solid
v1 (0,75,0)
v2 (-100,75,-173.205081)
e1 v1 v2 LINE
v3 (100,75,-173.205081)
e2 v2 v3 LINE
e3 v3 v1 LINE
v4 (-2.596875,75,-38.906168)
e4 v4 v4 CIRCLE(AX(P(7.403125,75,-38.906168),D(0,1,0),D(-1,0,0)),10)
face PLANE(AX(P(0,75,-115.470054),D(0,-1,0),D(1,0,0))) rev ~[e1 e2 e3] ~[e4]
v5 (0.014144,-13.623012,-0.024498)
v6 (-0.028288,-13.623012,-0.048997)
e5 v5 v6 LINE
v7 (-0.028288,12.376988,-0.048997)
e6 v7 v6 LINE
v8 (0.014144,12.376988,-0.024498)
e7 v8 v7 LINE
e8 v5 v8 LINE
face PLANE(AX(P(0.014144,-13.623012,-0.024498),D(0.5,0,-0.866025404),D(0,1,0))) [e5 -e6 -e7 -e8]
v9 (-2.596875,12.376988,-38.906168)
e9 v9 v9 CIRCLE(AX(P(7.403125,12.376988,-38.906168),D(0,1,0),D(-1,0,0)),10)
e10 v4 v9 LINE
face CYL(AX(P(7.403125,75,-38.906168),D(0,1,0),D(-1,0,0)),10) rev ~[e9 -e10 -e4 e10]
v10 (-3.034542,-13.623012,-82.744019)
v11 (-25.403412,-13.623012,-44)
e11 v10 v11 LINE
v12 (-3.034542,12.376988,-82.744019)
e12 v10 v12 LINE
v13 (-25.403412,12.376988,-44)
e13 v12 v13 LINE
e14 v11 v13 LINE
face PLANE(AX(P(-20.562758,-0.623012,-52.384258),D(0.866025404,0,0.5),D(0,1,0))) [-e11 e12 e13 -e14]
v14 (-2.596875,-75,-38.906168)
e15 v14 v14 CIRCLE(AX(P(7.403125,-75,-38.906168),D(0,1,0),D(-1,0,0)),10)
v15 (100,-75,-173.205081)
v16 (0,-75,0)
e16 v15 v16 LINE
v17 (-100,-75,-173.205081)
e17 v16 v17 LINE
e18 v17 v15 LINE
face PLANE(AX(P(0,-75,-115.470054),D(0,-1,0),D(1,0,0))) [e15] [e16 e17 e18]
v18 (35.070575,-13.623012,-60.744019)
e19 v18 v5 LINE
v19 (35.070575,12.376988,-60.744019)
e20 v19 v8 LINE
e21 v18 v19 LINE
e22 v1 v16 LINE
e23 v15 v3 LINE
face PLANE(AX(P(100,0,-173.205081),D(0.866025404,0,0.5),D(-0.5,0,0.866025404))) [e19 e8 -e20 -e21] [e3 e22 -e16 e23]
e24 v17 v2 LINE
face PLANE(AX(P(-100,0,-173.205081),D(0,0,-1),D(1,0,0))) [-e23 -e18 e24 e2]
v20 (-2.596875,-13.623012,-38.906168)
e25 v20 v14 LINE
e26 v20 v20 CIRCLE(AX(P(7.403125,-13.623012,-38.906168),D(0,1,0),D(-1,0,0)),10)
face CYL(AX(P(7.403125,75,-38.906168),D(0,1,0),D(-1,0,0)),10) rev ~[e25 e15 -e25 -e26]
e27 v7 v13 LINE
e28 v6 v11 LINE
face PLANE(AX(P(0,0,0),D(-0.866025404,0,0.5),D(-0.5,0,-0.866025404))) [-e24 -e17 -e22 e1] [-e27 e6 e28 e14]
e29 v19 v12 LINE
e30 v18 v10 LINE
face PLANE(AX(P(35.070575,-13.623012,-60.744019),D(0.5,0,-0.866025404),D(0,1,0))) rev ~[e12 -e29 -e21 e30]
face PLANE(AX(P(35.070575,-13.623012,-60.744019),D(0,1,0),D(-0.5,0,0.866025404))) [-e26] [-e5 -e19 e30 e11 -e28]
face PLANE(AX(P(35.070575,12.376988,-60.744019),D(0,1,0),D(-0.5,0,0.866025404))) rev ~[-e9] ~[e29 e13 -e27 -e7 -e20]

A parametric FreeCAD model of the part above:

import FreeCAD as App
import Part
import Sketcher

V = App.Vector
Q = App.Units.Quantity

doc = App.newDocument("Part")
body = doc.addObject("PartDesign::Body", "Body")

sketch1 = body.newObject("Sketcher::SketchObject", "Sketch")
sketch1.AttachmentSupport = (doc.getObject("XZ_Plane"), [""])
sketch1.MapMode = "FlatFace"
sketch1.addGeometry(Part.LineSegment(V(100, -173.205081, 0), V(0, 0, 0)), False)
sketch1.addGeometry(Part.LineSegment(V(0, 0, 0), V(-100, -173.205081, 0)), False)
sketch1.addGeometry(Part.LineSegment(V(-100, -173.205081, 0), V(100, -173.205081, 0)), False)
sketch1.addConstraint(Sketcher.Constraint("Coincident", 0, 2, 1, 1))
sketch1.addConstraint(Sketcher.Constraint("Coincident", 1, 2, 2, 1))
sketch1.addConstraint(Sketcher.Constraint("Coincident", 2, 2, 0, 1))
sketch1.addConstraint(Sketcher.Constraint("Horizontal", 2))
sketch1.addConstraint(Sketcher.Constraint("Coincident", 0, 2, -1, 1))
sketch1.addConstraint(Sketcher.Constraint("Equal", 0, 1))
sketch1.addConstraint(Sketcher.Constraint("DistanceX", 2, 1, 2, 2, Q("200 mm")))
sketch1.addConstraint(Sketcher.Constraint("Angle", 0, Q("120 deg")))
pad1 = body.newObject("PartDesign::Pad", "Pad")
pad1.Profile = sketch1
pad1.Length = 150
pad1.Midplane = True

sketch2 = body.newObject("Sketcher::SketchObject", "Sketch001")
sketch2.AttachmentSupport = (doc.getObject("XZ_Plane"), [""])
sketch2.MapMode = "FlatFace"
sketch2.AttachmentOffset = App.Placement(V(0, 0, -75), App.Rotation())
sketch2.addGeometry(Part.Circle(V(7.403125, -38.906168, 0), V(0, 0, 1), 10), False)
sketch2.addConstraint(Sketcher.Constraint("Diameter", 0, Q("20 mm")))
sketch2.addConstraint(Sketcher.Constraint("DistanceY", 0, 3, -1, 1, Q("38.906168 mm")))
sketch2.addConstraint(Sketcher.Constraint("DistanceX", -1, 1, 0, 3, Q("7.403125 mm")))
pocket1 = body.newObject("PartDesign::Pocket", "Pocket")
pocket1.Profile = sketch2
pocket1.Type = "ThroughAll"
pocket1.Reversed = True

sketch3 = body.newObject("Sketcher::SketchObject", "Sketch002")
sketch3.Placement = App.Placement(V(0, 0, 0), App.Rotation(V(0, 1, 0), V(-0.5, 0, 0.866025404), V(0.866025404, 0, 0.5), "ZXY"))
sketch3.addGeometry(Part.LineSegment(V(-13.623012, -0.028288, 0), V(-13.623012, -70.141151, 0)), False)
sketch3.addGeometry(Part.LineSegment(V(-13.623012, -70.141151, 0), V(12.376988, -70.141151, 0)), False)
sketch3.addGeometry(Part.LineSegment(V(12.376988, -70.141151, 0), V(12.376988, -0.028288, 0)), False)
sketch3.addGeometry(Part.LineSegment(V(12.376988, -0.028288, 0), V(-13.623012, -0.028288, 0)), False)
sketch3.addConstraint(Sketcher.Constraint("Coincident", 0, 2, 1, 1))
sketch3.addConstraint(Sketcher.Constraint("Coincident", 1, 2, 2, 1))
sketch3.addConstraint(Sketcher.Constraint("Coincident", 2, 2, 3, 1))
sketch3.addConstraint(Sketcher.Constraint("Coincident", 3, 2, 0, 1))
sketch3.addConstraint(Sketcher.Constraint("Vertical", 0))
sketch3.addConstraint(Sketcher.Constraint("Horizontal", 1))
sketch3.addConstraint(Sketcher.Constraint("Vertical", 2))
sketch3.addConstraint(Sketcher.Constraint("Horizontal", 3))
sketch3.addConstraint(Sketcher.Constraint("DistanceX", 1, 1, 1, 2, Q("26 mm")))
sketch3.addConstraint(Sketcher.Constraint("DistanceY", 0, 2, 0, 1, Q("70.112863 mm")))
sketch3.addConstraint(Sketcher.Constraint("DistanceX", 0, 2, -1, 1, Q("13.623012 mm")))
sketch3.addConstraint(Sketcher.Constraint("DistanceY", 0, 2, -1, 1, Q("70.141151 mm")))
pocket2 = body.newObject("PartDesign::Pocket", "Pocket001")
pocket2.Profile = sketch3
pocket2.Length = 44

doc.recompute()
